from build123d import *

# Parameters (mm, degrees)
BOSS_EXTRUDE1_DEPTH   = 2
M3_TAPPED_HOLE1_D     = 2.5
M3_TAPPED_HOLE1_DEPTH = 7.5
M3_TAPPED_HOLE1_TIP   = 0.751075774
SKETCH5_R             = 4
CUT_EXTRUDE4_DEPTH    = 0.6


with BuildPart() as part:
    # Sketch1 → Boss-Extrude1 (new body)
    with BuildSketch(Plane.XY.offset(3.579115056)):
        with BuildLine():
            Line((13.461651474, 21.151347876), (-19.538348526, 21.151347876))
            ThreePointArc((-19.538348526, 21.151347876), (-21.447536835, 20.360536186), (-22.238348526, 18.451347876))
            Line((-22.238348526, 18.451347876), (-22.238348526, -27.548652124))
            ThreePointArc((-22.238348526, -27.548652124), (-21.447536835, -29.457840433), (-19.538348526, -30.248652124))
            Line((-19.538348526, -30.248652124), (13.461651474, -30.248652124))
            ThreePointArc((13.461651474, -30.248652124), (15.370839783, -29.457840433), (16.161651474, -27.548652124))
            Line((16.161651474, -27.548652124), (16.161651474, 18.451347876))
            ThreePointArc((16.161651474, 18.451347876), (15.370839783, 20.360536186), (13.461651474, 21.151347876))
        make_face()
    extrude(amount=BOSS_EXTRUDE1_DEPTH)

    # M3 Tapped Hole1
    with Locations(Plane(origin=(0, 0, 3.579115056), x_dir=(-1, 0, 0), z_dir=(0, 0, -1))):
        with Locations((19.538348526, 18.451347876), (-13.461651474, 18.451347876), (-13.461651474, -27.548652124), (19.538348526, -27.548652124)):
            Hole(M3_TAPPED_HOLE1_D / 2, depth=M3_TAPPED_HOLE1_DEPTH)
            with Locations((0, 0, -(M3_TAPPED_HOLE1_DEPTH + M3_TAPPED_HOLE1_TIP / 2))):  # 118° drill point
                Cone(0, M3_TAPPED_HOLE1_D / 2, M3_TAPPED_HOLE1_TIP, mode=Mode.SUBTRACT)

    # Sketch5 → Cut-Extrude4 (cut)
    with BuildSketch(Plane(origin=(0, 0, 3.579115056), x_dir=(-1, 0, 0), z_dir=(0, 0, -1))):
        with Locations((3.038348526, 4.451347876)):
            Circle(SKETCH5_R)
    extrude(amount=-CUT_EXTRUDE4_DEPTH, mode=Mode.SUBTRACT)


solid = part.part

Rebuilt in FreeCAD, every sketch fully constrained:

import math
import FreeCAD as App
import Part
import Sketcher
Q = App.Units.Quantity

doc = App.newDocument("Part")
body = doc.addObject("PartDesign::Body", "Body")

# Sketch on XY plane
sketch1 = body.newObject("Sketcher::SketchObject", "Sketch")
sketch1.AttachmentSupport = (doc.getObject("XY_Plane"), [""])
sketch1.MapMode = "FlatFace"
sketch1.AttachmentOffset = App.Placement(App.Vector(0, 0, 3.579115), App.Rotation())
sketch1.addGeometry([
    Part.LineSegment(App.Vector(13.5, 21.2, 0), App.Vector(-19.5, 21.2, 0)),  # 0
    Part.ArcOfCircle(Part.Circle(App.Vector(-19.5, 18.5, 0), App.Vector(0, 0, 1), 2.7), math.radians(90), math.radians(180)),  # 1
    Part.LineSegment(App.Vector(-22.2, 18.5, 0), App.Vector(-22.2, -27.5, 0)),  # 2
    Part.ArcOfCircle(Part.Circle(App.Vector(-19.5, -27.5, 0), App.Vector(0, 0, 1), 2.7), math.radians(-180), math.radians(-90)),  # 3
    Part.LineSegment(App.Vector(-19.5, -30.2, 0), App.Vector(13.5, -30.2, 0)),  # 4
    Part.ArcOfCircle(Part.Circle(App.Vector(13.5, -27.5, 0), App.Vector(0, 0, 1), 2.7), math.radians(-90), math.radians(0)),  # 5
    Part.LineSegment(App.Vector(16.2, -27.5, 0), App.Vector(16.2, 18.5, 0)),  # 6
    Part.ArcOfCircle(Part.Circle(App.Vector(13.5, 18.5, 0), App.Vector(0, 0, 1), 2.7), math.radians(0), math.radians(90)),  # 7
], False)
sketch1.addConstraint([
    Sketcher.Constraint("Tangent", 0, 2, 1, 1),
    Sketcher.Constraint("Tangent", 1, 2, 2, 1),
    Sketcher.Constraint("Tangent", 2, 2, 3, 1),
    Sketcher.Constraint("Tangent", 3, 2, 4, 1),
    Sketcher.Constraint("Tangent", 4, 2, 5, 1),
    Sketcher.Constraint("Tangent", 5, 2, 6, 1),
    Sketcher.Constraint("Tangent", 6, 2, 7, 1),
    Sketcher.Constraint("Tangent", 7, 2, 0, 1),
    Sketcher.Constraint("Horizontal", 0),
    Sketcher.Constraint("Vertical", 2),
    Sketcher.Constraint("Horizontal", 4),
    Sketcher.Constraint("Vertical", 6),
    Sketcher.Constraint("Equal", 1, 3),
    Sketcher.Constraint("Equal", 3, 5),
    Sketcher.Constraint("Equal", 5, 7),
    Sketcher.Constraint("Radius", 1, Q("2.7 mm")),
    Sketcher.Constraint("DistanceX", 0, 2, 0, 1, Q("33 mm")),
    Sketcher.Constraint("DistanceY", 2, 2, 2, 1, Q("46 mm")),
    Sketcher.Constraint("DistanceX", 1, 3, -1, 1, Q("19.538349 mm")),
    Sketcher.Constraint("DistanceY", -1, 1, 1, 3, Q("18.451348 mm")),
])
pad1 = body.newObject("PartDesign::Pad", "Pad")
pad1.Profile = sketch1
pad1.Length = 2

# Sketch on XY plane
sketch2 = body.newObject("Sketcher::SketchObject", "Sketch001")
sketch2.AttachmentSupport = (doc.getObject("XY_Plane"), [""])
sketch2.MapMode = "FlatFace"
sketch2.AttachmentOffset = App.Placement(App.Vector(0, 0, 3.579115), App.Rotation())
sketch2.addGeometry([
    Part.Circle(App.Vector(-19.5, 18.5, 0), App.Vector(0, 0, 1), 1.2),
    Part.Circle(App.Vector(13.5, 18.5, 0), App.Vector(0, 0, 1), 1.2),
    Part.Circle(App.Vector(13.5, -27.5, 0), App.Vector(0, 0, 1), 1.2),
    Part.Circle(App.Vector(-19.5, -27.5, 0), App.Vector(0, 0, 1), 1.2),
], False)
sketch2.addConstraint([
    Sketcher.Constraint("Equal", 0, 1),
    Sketcher.Constraint("Equal", 1, 2),
    Sketcher.Constraint("Equal", 2, 3),
    Sketcher.Constraint("Horizontal", 0, 3, 1, 3),
    Sketcher.Constraint("Horizontal", 2, 3, 3, 3),
    Sketcher.Constraint("Vertical", 1, 3, 2, 3),
    Sketcher.Constraint("Vertical", 0, 3, 3, 3),
    Sketcher.Constraint("Diameter", 0, Q("2.5 mm")),
    Sketcher.Constraint("DistanceX", 0, 3, 1, 3, Q("33 mm")),
    Sketcher.Constraint("DistanceY", 2, 3, 1, 3, Q("46 mm")),
    Sketcher.Constraint("DistanceX", 0, 3, -1, 1, Q("19.538349 mm")),
    Sketcher.Constraint("DistanceY", -1, 1, 0, 3, Q("18.451348 mm")),
])
doc.recompute()
hole = body.newObject("PartDesign::Hole", "Hole")
hole.Profile = sketch2
hole.ThreadType = "None"
hole.Diameter = 2.5
hole.DepthType = "Dimension"
hole.Depth = 7.5
hole.DrillPoint = "Angled"
hole.DrillPointAngle = 118
hole.Reversed = True

# Sketch on XY plane
sketch3 = body.newObject("Sketcher::SketchObject", "Sketch002")
sketch3.AttachmentSupport = (doc.getObject("XY_Plane"), [""])
sketch3.MapMode = "FlatFace"
sketch3.AttachmentOffset = App.Placement(App.Vector(0, 0, 3.579115), App.Rotation())
sketch3.addGeometry(Part.Circle(App.Vector(-3, 4.5, 0), App.Vector(0, 0, 1), 4), False)
sketch3.addConstraint([
    Sketcher.Constraint("Diameter", 0, Q("8 mm")),
    Sketcher.Constraint("DistanceX", 0, 3, -1, 1, Q("3.038349 mm")),
    Sketcher.Constraint("DistanceY", -1, 1, 0, 3, Q("4.451348 mm")),
])
pocket1 = body.newObject("PartDesign::Pocket", "Pocket")
pocket1.Profile = sketch3
pocket1.Length = 0.6
pocket1.Reversed = True

doc.recompute()
